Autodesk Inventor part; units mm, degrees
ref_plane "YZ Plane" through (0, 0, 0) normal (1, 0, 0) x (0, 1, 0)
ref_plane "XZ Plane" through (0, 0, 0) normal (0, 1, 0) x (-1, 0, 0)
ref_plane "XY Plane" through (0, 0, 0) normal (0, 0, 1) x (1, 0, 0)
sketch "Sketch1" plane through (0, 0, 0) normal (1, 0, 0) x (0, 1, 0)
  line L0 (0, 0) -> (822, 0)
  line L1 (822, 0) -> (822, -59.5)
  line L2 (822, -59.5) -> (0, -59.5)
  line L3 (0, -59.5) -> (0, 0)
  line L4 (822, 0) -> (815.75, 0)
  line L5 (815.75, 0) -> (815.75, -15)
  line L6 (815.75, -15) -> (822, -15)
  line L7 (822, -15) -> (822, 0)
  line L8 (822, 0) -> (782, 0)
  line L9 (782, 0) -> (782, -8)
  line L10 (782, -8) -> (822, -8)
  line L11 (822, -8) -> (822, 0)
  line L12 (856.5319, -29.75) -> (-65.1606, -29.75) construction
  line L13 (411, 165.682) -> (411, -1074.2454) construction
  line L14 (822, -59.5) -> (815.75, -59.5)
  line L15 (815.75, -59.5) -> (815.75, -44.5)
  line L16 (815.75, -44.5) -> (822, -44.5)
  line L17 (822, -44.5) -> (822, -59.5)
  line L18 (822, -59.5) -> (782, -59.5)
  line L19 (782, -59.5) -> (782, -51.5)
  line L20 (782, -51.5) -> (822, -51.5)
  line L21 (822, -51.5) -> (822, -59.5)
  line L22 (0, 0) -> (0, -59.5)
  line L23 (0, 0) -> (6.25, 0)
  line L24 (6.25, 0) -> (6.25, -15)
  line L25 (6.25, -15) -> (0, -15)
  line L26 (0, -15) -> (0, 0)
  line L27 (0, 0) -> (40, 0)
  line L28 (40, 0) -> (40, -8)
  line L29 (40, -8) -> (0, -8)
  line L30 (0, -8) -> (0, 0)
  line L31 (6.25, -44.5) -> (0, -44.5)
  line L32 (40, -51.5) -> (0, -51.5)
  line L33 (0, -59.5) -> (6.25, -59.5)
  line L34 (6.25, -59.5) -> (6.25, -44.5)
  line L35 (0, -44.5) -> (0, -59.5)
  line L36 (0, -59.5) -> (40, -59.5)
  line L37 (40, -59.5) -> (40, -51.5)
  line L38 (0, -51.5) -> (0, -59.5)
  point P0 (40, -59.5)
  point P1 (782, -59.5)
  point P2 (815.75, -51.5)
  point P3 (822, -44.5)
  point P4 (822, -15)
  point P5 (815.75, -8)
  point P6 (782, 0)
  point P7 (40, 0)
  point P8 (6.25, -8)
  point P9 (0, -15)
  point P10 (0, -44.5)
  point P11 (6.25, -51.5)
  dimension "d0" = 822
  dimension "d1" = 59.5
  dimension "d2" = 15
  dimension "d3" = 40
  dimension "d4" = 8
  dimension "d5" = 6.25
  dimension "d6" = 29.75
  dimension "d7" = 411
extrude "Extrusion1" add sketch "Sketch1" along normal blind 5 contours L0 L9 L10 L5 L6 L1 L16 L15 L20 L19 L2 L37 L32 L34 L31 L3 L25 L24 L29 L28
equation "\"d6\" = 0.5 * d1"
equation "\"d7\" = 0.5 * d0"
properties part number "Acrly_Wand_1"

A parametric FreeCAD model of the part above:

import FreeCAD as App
import Part
import Sketcher
Q = App.Units.Quantity


def add_polygon(sketch, points):
    """Adds a closed chain of lines whose ends are joined by coincident constraints."""
    first, n = sketch.GeometryCount, len(points)
    for a, b in zip(points, points[1:] + points[:1]):
        sketch.addGeometry(Part.LineSegment(App.Vector(*a, 0), App.Vector(*b, 0)), False)
    for i in range(n):
        sketch.addConstraint(Sketcher.Constraint("Coincident", first + i, 2, first + (i + 1) % n, 1))

doc = App.newDocument("Part")
body = doc.addObject("PartDesign::Body", "Body")

# Sketch on YZ plane
sketch1 = body.newObject("Sketcher::SketchObject", "Sketch")
sketch1.AttachmentSupport = (doc.getObject("YZ_Plane"), [""])
sketch1.MapMode = "FlatFace"
add_polygon(sketch1, [(782, 0), (40, 0), (40, -8), (6, -8), (6, -15), (0, -15), (0, -44), (6, -44), (6, -52), (40, -52), (40, -60), (782, -60), (782, -52), (816, -52), (816, -44), (822, -44), (822, -15), (816, -15), (816, -8), (782, -8)])  # lines 0-19
sketch1.addConstraint(Sketcher.Constraint("Horizontal", 0))
sketch1.addConstraint(Sketcher.Constraint("Vertical", 1))
sketch1.addConstraint(Sketcher.Constraint("Horizontal", 2))
sketch1.addConstraint(Sketcher.Constraint("Vertical", 3))
sketch1.addConstraint(Sketcher.Constraint("Horizontal", 4))
sketch1.addConstraint(Sketcher.Constraint("Vertical", 5))
sketch1.addConstraint(Sketcher.Constraint("Horizontal", 6))
sketch1.addConstraint(Sketcher.Constraint("Vertical", 7))
sketch1.addConstraint(Sketcher.Constraint("Horizontal", 8))
sketch1.addConstraint(Sketcher.Constraint("Vertical", 9))
sketch1.addConstraint(Sketcher.Constraint("Horizontal", 10))
sketch1.addConstraint(Sketcher.Constraint("Vertical", 11))
sketch1.addConstraint(Sketcher.Constraint("Horizontal", 12))
sketch1.addConstraint(Sketcher.Constraint("Vertical", 13))
sketch1.addConstraint(Sketcher.Constraint("Horizontal", 14))
sketch1.addConstraint(Sketcher.Constraint("Vertical", 15))
sketch1.addConstraint(Sketcher.Constraint("Horizontal", 16))
sketch1.addConstraint(Sketcher.Constraint("Vertical", 17))
sketch1.addConstraint(Sketcher.Constraint("Horizontal", 18))
sketch1.addConstraint(Sketcher.Constraint("Vertical", 19))
sketch1.addConstraint(Sketcher.Constraint("PointOnObject", 0, 2, -1))
sketch1.addConstraint(Sketcher.Constraint("PointOnObject", 4, 2, -2))
sketch1.addConstraint(Sketcher.Constraint("Horizontal", 8, 2, 11, 2))
sketch1.addConstraint(Sketcher.Constraint("Horizontal", 6, 2, 13, 2))
sketch1.addConstraint(Sketcher.Constraint("Horizontal", 4, 2, 15, 2))
sketch1.addConstraint(Sketcher.Constraint("Horizontal", 2, 2, 17, 2))
sketch1.addConstraint(Sketcher.Constraint("Vertical", 3, 2, 6, 2))
sketch1.addConstraint(Sketcher.Constraint("Vertical", 1, 2, 8, 2))
sketch1.addConstraint(Sketcher.Constraint("Vertical", 13, 2, 16, 2))
sketch1.addConstraint(Sketcher.Constraint("Vertical", 11, 2, 18, 2))
sketch1.addConstraint(Sketcher.Constraint("Equal", 8, 12))
sketch1.addConstraint(Sketcher.Constraint("Equal", 6, 14))
sketch1.addConstraint(Sketcher.Constraint("Equal", 3, 7))
sketch1.addConstraint(Sketcher.Constraint("Equal", 1, 9))
sketch1.addConstraint(Sketcher.Constraint("DistanceY", 1, 2, 1, 1, Q("8 mm")))
sketch1.addConstraint(Sketcher.Constraint("DistanceX", -1, 1, 0, 2, Q("40 mm")))
sketch1.addConstraint(Sketcher.Constraint("DistanceY", 3, 2, -1, 1, Q("15 mm")))
sketch1.addConstraint(Sketcher.Constraint("DistanceX", -1, 1, 14, 2, Q("822 mm")))
sketch1.addConstraint(Sketcher.Constraint("DistanceX", 4, 2, 4, 1, Q("6.25 mm")))
sketch1.addConstraint(Sketcher.Constraint("DistanceY", 9, 2, -1, 1, Q("59.5 mm")))
pad1 = body.newObject("PartDesign::Pad", "Pad")
pad1.Profile = sketch1
pad1.Length = 5

doc.recompute()
